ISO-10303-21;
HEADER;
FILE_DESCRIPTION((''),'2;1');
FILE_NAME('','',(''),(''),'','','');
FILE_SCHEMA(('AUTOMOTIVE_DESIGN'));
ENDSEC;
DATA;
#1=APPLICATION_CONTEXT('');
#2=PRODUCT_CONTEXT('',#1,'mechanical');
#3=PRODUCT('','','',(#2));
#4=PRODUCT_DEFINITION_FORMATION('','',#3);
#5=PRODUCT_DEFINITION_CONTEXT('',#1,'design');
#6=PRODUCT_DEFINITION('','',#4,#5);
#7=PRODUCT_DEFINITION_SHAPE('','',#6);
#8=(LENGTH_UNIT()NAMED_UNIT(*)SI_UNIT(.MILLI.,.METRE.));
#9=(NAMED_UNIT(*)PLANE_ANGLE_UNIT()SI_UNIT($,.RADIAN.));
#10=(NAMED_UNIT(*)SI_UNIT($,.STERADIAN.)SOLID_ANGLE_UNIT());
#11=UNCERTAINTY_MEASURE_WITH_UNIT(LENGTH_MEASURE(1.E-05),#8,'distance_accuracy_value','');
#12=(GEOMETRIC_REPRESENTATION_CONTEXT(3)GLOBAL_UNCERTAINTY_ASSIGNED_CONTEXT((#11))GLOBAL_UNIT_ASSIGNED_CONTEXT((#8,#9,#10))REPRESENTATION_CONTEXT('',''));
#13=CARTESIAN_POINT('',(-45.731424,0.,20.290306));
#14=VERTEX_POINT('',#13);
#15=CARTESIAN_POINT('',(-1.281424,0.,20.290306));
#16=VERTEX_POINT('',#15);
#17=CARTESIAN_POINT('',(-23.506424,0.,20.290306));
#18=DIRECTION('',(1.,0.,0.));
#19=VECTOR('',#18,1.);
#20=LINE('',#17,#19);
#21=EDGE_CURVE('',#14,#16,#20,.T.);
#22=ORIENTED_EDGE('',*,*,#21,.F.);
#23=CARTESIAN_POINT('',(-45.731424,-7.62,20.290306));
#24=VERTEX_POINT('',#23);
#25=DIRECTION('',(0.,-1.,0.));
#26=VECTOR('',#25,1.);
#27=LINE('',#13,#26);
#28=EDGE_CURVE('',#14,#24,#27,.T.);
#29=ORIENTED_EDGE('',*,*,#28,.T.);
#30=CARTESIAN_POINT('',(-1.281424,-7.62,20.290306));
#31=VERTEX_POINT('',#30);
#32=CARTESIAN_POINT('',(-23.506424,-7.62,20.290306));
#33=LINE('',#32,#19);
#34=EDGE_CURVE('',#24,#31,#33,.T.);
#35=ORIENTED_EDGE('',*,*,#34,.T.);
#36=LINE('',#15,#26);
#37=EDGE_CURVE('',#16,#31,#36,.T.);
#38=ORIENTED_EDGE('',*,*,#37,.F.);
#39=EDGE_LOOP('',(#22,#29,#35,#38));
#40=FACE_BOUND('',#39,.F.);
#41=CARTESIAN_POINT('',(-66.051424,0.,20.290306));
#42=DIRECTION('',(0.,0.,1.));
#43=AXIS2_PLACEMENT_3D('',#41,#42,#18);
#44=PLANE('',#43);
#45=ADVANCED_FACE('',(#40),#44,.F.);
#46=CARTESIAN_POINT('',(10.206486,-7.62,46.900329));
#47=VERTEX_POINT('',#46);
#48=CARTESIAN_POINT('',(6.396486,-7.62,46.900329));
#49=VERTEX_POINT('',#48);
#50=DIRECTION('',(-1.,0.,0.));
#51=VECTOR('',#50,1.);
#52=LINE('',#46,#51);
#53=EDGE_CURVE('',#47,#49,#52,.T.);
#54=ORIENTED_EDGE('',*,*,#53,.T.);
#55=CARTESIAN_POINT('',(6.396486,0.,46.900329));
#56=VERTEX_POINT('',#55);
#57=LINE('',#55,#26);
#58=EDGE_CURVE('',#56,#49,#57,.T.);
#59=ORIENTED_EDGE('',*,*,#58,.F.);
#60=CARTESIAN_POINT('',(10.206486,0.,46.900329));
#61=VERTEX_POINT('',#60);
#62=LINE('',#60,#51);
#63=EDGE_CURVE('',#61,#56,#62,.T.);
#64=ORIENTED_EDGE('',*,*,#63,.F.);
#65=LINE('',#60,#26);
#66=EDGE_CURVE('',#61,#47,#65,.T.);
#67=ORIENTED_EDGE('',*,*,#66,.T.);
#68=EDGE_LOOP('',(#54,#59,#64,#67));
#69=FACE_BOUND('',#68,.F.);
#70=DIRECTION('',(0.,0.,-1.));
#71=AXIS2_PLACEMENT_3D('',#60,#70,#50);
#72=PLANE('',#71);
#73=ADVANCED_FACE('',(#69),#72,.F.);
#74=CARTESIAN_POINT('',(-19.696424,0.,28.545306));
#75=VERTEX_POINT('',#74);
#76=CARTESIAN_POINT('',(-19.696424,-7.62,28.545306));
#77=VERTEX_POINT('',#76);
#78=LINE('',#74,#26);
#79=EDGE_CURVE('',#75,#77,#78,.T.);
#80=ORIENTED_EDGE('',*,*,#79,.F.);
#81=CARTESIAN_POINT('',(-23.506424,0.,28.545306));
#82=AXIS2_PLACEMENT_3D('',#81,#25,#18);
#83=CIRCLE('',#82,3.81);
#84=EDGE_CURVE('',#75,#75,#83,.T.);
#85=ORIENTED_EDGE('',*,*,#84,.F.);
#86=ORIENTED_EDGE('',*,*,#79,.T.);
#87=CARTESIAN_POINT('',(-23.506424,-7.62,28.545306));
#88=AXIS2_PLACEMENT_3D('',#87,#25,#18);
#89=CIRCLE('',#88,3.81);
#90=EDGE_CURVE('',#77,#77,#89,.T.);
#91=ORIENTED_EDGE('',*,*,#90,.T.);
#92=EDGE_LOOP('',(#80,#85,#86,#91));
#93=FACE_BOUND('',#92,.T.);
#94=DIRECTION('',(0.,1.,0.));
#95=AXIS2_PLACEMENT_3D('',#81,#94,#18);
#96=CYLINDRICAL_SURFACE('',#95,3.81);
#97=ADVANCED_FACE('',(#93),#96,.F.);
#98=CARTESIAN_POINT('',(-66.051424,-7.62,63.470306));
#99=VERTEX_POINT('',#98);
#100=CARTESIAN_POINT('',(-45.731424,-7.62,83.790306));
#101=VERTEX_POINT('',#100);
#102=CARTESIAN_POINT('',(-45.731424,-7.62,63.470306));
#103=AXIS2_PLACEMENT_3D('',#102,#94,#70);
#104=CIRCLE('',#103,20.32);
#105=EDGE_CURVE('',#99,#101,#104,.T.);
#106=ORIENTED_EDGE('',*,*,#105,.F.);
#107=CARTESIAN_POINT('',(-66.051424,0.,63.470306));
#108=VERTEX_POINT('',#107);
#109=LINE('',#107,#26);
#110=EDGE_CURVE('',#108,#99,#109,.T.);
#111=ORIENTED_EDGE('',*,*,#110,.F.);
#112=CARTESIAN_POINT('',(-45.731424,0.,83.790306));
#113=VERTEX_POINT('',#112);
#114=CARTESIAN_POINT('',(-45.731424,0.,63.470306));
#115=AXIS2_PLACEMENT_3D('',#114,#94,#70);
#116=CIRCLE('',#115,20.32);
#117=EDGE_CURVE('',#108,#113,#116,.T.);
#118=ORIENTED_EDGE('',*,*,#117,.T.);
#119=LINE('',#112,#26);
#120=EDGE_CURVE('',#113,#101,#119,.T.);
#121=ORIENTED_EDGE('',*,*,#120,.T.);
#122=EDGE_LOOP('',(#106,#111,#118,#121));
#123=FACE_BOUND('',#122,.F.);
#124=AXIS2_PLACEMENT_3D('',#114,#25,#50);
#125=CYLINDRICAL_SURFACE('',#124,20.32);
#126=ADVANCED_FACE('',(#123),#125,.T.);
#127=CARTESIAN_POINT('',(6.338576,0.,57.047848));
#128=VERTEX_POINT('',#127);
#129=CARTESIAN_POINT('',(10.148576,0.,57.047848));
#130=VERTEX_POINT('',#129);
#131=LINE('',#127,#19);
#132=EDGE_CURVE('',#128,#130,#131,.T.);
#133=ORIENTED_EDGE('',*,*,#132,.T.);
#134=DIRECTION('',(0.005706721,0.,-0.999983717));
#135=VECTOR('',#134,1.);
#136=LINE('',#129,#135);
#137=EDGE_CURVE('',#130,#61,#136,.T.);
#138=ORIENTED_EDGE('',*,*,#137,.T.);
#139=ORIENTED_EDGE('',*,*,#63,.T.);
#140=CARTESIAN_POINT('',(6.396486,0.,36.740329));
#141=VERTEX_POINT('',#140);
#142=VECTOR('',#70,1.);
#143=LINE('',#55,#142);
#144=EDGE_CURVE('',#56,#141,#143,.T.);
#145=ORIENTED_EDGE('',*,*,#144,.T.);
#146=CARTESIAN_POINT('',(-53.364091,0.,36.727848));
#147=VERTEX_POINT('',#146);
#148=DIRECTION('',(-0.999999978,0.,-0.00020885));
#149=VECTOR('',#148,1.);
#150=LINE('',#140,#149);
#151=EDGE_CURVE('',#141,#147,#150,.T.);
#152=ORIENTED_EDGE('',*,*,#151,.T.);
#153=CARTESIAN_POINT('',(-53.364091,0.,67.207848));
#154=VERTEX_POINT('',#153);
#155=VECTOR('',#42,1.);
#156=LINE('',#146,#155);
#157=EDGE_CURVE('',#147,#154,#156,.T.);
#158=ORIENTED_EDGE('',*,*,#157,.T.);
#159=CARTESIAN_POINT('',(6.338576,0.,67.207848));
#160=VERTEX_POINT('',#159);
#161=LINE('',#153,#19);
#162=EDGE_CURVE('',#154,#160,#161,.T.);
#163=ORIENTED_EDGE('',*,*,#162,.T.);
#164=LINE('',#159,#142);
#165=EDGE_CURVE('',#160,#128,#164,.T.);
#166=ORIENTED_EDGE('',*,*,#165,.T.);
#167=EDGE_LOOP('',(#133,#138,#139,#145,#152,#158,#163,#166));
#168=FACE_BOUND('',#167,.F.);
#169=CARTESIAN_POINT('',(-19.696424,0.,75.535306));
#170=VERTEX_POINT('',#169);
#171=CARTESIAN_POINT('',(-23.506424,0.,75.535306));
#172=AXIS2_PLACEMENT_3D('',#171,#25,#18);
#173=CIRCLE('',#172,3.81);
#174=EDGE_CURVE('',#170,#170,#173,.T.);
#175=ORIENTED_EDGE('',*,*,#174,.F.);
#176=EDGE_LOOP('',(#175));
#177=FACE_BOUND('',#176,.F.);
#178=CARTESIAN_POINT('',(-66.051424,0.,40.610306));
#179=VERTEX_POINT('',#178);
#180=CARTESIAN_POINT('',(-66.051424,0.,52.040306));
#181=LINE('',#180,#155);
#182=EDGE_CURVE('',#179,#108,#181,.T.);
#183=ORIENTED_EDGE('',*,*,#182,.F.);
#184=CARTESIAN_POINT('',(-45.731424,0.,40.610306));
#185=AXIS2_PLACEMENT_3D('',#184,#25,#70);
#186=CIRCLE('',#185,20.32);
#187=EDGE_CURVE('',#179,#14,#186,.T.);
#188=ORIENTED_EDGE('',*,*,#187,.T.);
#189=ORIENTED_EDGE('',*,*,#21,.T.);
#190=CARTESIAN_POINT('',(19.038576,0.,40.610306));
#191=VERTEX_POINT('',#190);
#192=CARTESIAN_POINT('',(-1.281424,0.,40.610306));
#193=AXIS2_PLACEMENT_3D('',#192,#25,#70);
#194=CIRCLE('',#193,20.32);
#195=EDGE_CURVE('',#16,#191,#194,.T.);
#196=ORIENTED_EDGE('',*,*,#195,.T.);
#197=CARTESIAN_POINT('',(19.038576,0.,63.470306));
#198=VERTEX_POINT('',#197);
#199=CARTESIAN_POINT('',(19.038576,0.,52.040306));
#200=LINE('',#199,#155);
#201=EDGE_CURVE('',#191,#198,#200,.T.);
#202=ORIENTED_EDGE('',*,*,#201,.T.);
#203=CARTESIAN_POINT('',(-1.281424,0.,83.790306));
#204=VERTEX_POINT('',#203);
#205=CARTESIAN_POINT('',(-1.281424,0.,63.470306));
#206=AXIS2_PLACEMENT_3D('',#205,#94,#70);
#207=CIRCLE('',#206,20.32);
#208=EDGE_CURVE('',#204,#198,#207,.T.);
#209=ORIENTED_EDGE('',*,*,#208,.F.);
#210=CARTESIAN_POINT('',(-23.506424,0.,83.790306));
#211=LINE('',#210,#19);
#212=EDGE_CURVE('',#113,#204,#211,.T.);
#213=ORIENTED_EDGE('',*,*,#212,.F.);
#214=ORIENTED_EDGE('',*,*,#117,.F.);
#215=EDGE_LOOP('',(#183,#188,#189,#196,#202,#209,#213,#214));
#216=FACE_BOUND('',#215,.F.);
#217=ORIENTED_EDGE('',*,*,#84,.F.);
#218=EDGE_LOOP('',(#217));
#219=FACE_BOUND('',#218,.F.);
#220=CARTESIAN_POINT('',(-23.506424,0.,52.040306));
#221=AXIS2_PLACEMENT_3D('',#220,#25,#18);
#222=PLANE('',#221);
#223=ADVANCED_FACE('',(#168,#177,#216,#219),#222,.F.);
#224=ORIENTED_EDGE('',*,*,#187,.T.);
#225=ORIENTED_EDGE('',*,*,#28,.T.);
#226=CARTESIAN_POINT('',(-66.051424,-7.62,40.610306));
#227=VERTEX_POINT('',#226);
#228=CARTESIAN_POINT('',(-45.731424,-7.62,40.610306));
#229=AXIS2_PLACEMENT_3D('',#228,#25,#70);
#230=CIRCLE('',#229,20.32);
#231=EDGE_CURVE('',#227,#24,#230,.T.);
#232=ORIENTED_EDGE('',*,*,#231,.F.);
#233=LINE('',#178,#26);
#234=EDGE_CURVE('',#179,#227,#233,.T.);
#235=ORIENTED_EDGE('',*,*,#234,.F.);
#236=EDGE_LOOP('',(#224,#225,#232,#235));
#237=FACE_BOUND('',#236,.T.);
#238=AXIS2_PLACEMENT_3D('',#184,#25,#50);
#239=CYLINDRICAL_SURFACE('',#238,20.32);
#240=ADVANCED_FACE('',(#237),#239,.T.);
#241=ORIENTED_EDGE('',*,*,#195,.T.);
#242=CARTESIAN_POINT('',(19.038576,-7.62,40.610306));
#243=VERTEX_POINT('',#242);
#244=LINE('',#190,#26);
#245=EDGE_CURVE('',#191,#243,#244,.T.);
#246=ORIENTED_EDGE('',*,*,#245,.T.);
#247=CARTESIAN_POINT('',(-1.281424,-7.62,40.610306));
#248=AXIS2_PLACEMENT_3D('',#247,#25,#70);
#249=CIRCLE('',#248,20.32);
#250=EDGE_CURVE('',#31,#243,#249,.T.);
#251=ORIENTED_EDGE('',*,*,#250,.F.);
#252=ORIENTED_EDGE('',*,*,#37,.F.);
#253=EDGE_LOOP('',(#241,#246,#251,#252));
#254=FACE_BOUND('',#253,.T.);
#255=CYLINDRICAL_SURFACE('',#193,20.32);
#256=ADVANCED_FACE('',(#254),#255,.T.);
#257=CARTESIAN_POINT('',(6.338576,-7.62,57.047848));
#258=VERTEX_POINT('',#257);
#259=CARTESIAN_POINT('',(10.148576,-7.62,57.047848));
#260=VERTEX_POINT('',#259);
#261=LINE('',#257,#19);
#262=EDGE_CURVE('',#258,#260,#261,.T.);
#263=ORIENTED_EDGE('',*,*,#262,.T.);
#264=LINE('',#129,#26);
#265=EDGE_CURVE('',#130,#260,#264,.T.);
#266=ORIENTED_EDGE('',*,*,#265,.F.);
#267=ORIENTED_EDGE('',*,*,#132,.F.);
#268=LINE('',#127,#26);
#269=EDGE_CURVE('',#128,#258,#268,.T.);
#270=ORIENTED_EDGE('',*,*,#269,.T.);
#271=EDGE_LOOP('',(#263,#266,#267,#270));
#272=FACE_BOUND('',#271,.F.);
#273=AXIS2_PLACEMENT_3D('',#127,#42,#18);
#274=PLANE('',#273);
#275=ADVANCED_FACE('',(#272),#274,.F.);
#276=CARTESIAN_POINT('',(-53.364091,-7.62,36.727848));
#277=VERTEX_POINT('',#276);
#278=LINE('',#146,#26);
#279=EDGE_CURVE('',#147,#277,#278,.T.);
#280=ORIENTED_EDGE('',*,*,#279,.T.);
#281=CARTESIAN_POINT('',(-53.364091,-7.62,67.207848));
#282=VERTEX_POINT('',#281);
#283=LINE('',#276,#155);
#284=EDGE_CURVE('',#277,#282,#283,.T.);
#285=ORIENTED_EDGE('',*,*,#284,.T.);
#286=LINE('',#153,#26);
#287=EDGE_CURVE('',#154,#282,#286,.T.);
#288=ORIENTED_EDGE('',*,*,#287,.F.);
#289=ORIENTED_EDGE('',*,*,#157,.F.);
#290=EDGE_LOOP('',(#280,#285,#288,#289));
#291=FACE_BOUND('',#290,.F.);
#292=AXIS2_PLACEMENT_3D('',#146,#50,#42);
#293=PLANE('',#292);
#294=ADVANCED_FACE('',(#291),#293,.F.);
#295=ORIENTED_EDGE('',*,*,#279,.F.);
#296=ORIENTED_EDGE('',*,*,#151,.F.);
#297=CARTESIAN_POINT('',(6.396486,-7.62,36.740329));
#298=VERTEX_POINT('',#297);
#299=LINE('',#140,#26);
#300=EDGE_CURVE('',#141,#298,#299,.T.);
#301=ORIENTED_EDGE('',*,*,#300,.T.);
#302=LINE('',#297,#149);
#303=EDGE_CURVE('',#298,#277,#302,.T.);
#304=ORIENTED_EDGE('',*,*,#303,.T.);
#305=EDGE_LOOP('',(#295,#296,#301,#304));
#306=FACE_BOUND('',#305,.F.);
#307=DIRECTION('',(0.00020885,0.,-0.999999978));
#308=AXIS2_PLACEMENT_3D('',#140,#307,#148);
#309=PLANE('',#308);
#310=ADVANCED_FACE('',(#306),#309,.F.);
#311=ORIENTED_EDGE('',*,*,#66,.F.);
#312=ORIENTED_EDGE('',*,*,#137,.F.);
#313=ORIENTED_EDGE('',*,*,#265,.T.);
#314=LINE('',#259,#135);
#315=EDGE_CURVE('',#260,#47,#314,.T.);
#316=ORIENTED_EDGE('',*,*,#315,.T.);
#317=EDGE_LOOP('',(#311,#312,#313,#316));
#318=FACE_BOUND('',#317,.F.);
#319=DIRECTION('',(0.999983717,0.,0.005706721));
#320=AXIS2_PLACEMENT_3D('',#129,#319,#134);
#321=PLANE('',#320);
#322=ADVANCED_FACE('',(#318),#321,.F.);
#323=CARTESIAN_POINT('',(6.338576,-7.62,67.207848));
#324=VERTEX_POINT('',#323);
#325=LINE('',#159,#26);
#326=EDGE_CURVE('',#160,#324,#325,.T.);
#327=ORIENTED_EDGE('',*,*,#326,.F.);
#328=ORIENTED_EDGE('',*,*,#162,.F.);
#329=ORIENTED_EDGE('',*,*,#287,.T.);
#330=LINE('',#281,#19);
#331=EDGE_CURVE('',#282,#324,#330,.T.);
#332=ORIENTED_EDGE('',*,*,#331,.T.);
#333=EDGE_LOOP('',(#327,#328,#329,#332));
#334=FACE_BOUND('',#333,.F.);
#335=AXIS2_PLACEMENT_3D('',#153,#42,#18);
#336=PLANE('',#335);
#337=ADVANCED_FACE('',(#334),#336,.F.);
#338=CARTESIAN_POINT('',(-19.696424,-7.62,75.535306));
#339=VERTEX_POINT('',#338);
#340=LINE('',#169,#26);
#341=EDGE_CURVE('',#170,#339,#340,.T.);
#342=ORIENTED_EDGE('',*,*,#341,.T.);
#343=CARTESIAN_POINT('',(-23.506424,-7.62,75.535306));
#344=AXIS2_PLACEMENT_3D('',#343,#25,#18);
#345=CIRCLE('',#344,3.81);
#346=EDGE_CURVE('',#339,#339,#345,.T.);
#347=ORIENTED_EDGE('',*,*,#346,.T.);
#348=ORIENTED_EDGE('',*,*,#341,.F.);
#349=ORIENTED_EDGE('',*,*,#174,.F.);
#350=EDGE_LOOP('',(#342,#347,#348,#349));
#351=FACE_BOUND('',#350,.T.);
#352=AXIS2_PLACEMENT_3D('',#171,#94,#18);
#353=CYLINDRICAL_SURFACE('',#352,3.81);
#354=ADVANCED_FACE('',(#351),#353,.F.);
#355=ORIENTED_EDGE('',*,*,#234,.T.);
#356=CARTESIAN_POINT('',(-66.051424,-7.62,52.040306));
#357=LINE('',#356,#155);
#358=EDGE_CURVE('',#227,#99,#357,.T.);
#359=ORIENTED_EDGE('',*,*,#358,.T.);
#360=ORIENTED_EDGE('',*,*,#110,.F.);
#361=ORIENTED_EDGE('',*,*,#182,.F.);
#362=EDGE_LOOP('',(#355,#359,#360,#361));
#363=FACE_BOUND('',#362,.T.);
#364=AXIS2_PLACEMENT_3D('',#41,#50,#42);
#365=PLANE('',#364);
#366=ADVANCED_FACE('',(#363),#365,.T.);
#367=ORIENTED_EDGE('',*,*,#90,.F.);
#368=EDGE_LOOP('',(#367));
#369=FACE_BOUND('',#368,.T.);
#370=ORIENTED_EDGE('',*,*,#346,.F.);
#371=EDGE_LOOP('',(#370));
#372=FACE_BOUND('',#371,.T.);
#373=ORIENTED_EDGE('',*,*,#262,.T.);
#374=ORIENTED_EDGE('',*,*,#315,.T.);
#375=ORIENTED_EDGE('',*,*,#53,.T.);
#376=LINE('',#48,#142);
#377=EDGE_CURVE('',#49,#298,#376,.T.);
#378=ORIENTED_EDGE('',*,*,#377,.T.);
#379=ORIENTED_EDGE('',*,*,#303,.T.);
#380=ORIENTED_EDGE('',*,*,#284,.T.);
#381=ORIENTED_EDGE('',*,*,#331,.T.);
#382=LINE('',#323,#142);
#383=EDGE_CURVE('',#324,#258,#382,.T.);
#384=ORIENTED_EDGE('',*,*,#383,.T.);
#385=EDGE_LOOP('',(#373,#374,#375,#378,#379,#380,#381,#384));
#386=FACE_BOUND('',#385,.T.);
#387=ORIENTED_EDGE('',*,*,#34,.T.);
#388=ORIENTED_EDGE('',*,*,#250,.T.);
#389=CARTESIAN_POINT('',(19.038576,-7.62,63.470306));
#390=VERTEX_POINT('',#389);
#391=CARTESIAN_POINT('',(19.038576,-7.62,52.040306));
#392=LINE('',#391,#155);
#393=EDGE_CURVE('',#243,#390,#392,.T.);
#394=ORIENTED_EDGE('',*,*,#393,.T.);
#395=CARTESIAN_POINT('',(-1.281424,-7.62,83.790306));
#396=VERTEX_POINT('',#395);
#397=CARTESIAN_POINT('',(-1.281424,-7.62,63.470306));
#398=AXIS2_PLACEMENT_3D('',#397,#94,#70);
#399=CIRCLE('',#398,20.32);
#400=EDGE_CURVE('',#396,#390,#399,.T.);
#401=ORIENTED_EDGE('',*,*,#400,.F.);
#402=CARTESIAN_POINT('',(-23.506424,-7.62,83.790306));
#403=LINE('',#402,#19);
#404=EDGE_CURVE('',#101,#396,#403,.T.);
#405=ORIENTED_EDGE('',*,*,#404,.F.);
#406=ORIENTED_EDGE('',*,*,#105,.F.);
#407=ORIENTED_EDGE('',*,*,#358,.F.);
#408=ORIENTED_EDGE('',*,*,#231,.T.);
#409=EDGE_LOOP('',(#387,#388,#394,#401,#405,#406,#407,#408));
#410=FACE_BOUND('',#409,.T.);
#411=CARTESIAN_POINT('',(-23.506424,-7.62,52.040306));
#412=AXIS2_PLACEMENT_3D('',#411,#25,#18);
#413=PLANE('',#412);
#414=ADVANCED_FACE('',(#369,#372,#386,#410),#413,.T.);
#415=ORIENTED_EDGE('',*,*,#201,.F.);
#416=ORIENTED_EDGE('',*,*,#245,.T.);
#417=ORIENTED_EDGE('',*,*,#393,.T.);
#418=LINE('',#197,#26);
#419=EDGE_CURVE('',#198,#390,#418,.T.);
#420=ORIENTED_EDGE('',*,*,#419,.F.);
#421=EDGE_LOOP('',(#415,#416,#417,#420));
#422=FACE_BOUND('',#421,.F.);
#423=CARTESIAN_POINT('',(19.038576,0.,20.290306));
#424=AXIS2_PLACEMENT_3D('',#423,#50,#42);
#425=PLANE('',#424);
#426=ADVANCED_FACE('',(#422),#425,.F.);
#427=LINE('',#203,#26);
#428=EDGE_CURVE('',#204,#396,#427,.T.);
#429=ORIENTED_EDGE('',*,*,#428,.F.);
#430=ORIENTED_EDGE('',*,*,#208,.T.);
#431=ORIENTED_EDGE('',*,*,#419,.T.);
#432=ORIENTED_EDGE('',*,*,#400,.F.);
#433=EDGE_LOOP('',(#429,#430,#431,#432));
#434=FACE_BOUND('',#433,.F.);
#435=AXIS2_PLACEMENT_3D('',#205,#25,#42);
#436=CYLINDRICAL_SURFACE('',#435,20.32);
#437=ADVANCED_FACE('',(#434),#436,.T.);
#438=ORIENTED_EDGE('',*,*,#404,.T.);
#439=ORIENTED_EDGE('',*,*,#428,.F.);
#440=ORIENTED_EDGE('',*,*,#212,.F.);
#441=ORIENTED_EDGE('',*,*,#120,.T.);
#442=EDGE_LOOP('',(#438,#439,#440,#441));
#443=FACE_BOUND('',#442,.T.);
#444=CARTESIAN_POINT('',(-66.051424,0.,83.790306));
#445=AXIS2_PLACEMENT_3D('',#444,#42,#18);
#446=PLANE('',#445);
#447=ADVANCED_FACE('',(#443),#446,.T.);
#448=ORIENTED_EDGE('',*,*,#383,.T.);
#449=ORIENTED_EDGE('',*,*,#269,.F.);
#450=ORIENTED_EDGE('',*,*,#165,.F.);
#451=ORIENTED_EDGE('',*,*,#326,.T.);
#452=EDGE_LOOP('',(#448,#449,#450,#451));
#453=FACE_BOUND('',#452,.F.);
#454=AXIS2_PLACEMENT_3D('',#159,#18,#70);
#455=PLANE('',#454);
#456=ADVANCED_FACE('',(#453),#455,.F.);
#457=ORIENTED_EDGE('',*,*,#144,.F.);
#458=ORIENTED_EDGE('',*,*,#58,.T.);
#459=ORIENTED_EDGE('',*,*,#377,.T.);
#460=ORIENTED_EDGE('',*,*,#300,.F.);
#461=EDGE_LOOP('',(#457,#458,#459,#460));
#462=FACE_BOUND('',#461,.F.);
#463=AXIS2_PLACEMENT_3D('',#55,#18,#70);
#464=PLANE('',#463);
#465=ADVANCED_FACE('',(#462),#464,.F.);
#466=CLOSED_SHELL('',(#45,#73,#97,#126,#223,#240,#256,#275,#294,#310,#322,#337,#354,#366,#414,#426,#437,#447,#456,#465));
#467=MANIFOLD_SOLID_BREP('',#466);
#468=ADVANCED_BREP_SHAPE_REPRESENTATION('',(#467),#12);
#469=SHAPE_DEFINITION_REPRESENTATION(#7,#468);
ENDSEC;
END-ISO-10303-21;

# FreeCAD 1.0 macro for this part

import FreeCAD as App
import Part
import Sketcher
Q = App.Units.Quantity


def edges_at(feature, points):
    """Names of the edges that pass closest to the given points."""
    edges = feature.Shape.Edges
    near = lambda p: min(range(len(edges)), key=lambda i: edges[i].distToShape(Part.Vertex(*p))[0])
    return sorted({f"Edge{near(p) + 1}" for p in points})


def add_polygon(sketch, points):
    """Adds a closed chain of lines whose ends are joined by coincident constraints."""
    first, n = sketch.GeometryCount, len(points)
    for a, b in zip(points, points[1:] + points[:1]):
        sketch.addGeometry(Part.LineSegment(App.Vector(*a, 0), App.Vector(*b, 0)), False)
    for i in range(n):
        sketch.addConstraint(Sketcher.Constraint("Coincident", first + i, 2, first + (i + 1) % n, 1))

doc = App.newDocument("Part")
params = doc.addObject("Spreadsheet::Sheet", "Params")
for row, (alias, value) in enumerate([
    ("sketch1_diameter", "0.3 in"),
    ("sketch1_height", "2.5 in"),
    ("sketch1_height2", "1.2 in"),
    ("sketch1_height3", "0.4 in"),
    ("sketch1_width", "3.35 in"),
    ("pad1_length", "0.3 in"),
    ("fillet_radius", "0.8 in"),
], start=1):
    params.set(f"A{row}", alias)
    params.set(f"B{row}", "=" + value)
    params.setAlias(f"B{row}", alias)

body = doc.addObject("PartDesign::Body", "Body")

# Sketch on XZ plane
sketch1 = doc.addObject("Sketcher::SketchObject", "Sketch")
body.addObject(sketch1)
sketch1.AttachmentSupport = (doc.XZ_Plane, [""])
sketch1.MapMode = "FlatFace"
add_polygon(sketch1, [(-66.051424, 83.790306), (-66.051424, 20.290306), (19.038576, 20.290306), (19.038576, 83.790306)])  # lines 0-3
sketch1.addGeometry(Part.Circle(App.Vector(-23.506424, 28.545306, 0), App.Vector(0, 0, 1), 3.81), False)  # 4
add_polygon(sketch1, [(-53.364091, 36.727848), (-53.364091, 67.207848), (6.338576, 67.207848), (6.338576, 57.047848), (10.148576, 57.047848), (10.206486, 46.900329), (6.396486, 46.900329), (6.396486, 36.740329)])  # lines 5-12
sketch1.addGeometry(Part.Circle(App.Vector(-23.506424, 75.535306, 0), App.Vector(0, 0, 1), 3.81), False)  # 13
sketch1.addConstraint([
    Sketcher.Constraint("Vertical", 0),
    Sketcher.Constraint("Horizontal", 1),
    Sketcher.Constraint("Vertical", 2),
    Sketcher.Constraint("Horizontal", 3),
    Sketcher.Constraint("Vertical", 5),
    Sketcher.Constraint("Horizontal", 6),
    Sketcher.Constraint("Vertical", 7),
    Sketcher.Constraint("Horizontal", 8),
    Sketcher.Constraint("Horizontal", 10),
    Sketcher.Constraint("Vertical", 11),
    Sketcher.Constraint("Equal", 4, 13),
    Sketcher.Constraint("Vertical", 4, 3, 13, 3),
    Sketcher.Constraint("Equal", 8, 10),
    Sketcher.Constraint("Equal", 7, 11),
    Sketcher.Constraint("Diameter", 4, Q("0.3 in")),
    Sketcher.Constraint("DistanceY", 0, 2, 0, 1, Q("2.5 in")),
    Sketcher.Constraint("DistanceY", 5, 1, 5, 2, Q("1.2 in")),
    Sketcher.Constraint("DistanceY", 7, 2, 7, 1, Q("0.4 in")),
    Sketcher.Constraint("DistanceX", 1, 1, 1, 2, Q("3.35 in")),
    Sketcher.Constraint("DistanceX", 8, 1, 8, 2, Q("0.15 in")),
    Sketcher.Constraint("DistanceX", 6, 2, 2, 2, Q("0.5 in")),
    Sketcher.Constraint("DistanceY", 4, 3, 13, 3, Q("1.85 in")),
    Sketcher.Constraint("DistanceX", 0, 2, 4, 3, Q("1.675 in")),
    Sketcher.Constraint("DistanceY", 0, 2, 4, 3, Q("0.325 in")),
    Sketcher.Constraint("Distance", 12, Q("59.760578 mm")),
    Sketcher.Constraint("DistanceX", 6, 1, 6, 2, Q("59.702667 mm")),
    Sketcher.Constraint("DistanceX", 5, 2, -1, 1, Q("53.364091 mm")),
    Sketcher.Constraint("DistanceY", -1, 1, 5, 2, Q("67.207848 mm")),
    Sketcher.Constraint("DistanceY", -1, 1, 9, 2, Q("46.900329 mm")),
    Sketcher.Constraint("DistanceY", 5, 2, 3, 2, Q("16.582458 mm")),
])
sketch1.setExpression("Constraints[26]", "Params.sketch1_diameter")
sketch1.setExpression("Constraints[27]", "Params.sketch1_height")
sketch1.setExpression("Constraints[28]", "Params.sketch1_height2")
sketch1.setExpression("Constraints[29]", "Params.sketch1_height3")
sketch1.setExpression("Constraints[30]", "Params.sketch1_width")
pad1 = doc.addObject("PartDesign::Pad", "Pad")
body.addObject(pad1)
pad1.Profile = sketch1
pad1.setExpression("Length", "Params.pad1_length")
doc.recompute()

fillet = doc.addObject("PartDesign::Fillet", "Fillet")
body.addObject(fillet)
fillet.Base = (pad1, edges_at(pad1, [
    (-66.051, -3.81, 83.79),
    (-66.051, -3.81, 20.29),
    (19.039, -3.81, 20.29),
    (19.039, -3.81, 83.79),
]))
fillet.setExpression("Radius", "Params.fillet_radius")

doc.recompute()
